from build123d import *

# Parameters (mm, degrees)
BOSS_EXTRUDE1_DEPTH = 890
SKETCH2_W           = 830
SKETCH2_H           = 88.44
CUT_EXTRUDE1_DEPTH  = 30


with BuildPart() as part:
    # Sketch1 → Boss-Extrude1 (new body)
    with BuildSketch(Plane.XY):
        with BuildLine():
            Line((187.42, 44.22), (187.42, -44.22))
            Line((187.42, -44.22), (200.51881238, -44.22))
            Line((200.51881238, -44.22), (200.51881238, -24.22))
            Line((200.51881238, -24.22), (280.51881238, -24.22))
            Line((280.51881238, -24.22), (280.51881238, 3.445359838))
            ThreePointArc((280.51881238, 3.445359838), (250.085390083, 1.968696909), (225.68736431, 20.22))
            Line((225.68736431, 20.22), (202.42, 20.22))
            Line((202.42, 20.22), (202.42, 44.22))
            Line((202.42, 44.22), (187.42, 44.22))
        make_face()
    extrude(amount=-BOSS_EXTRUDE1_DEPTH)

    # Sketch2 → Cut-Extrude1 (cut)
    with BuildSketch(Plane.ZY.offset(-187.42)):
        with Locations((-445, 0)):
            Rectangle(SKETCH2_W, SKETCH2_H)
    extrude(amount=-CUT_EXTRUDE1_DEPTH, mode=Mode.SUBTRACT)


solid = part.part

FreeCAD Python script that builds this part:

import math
import FreeCAD as App
import Part
import Sketcher


def add_polygon(sketch, points):
    """Adds a closed chain of lines whose ends are joined by coincident constraints."""
    first, n = sketch.GeometryCount, len(points)
    for a, b in zip(points, points[1:] + points[:1]):
        sketch.addGeometry(Part.LineSegment(App.Vector(*a, 0), App.Vector(*b, 0)), False)
    for i in range(n):
        sketch.addConstraint(Sketcher.Constraint("Coincident", first + i, 2, first + (i + 1) % n, 1))

doc = App.newDocument("Part")
body = doc.addObject("PartDesign::Body", "Body")

sketch1 = body.newObject("Sketcher::SketchObject", "Sketch")
sketch1.AttachmentSupport = (doc.getObject("XY_Plane"), [""])
sketch1.MapMode = "FlatFace"
sketch1.addGeometry([
    Part.LineSegment(App.Vector(187, 44, 0), App.Vector(187, -44, 0)),
    Part.LineSegment(App.Vector(187, -44, 0), App.Vector(201, -44, 0)),
    Part.LineSegment(App.Vector(201, -44, 0), App.Vector(201, -24, 0)),
    Part.LineSegment(App.Vector(201, -24, 0), App.Vector(281, -24, 0)),
    Part.LineSegment(App.Vector(281, -24, 0), App.Vector(281, 3, 0)),
    Part.ArcOfCircle(Part.Circle(App.Vector(263, 45, 0), App.Vector(0, 0, 1), 45), math.radians(-147), math.radians(-67)),
    Part.LineSegment(App.Vector(226, 20, 0), App.Vector(202, 20, 0)),
    Part.LineSegment(App.Vector(202, 20, 0), App.Vector(202, 44, 0)),
    Part.LineSegment(App.Vector(202, 44, 0), App.Vector(187, 44, 0)),
], False)
sketch1.addConstraint([
    Sketcher.Constraint("Coincident", 0, 2, 1, 1),
    Sketcher.Constraint("Coincident", 1, 2, 2, 1),
    Sketcher.Constraint("Coincident", 2, 2, 3, 1),
    Sketcher.Constraint("Coincident", 3, 2, 4, 1),
    Sketcher.Constraint("Coincident", 4, 2, 5, 2),
    Sketcher.Constraint("Coincident", 5, 1, 6, 1),
    Sketcher.Constraint("Coincident", 6, 2, 7, 1),
    Sketcher.Constraint("Coincident", 7, 2, 8, 1),
    Sketcher.Constraint("Coincident", 8, 2, 0, 1),
    Sketcher.Constraint("Vertical", 0),
    Sketcher.Constraint("Horizontal", 1),
    Sketcher.Constraint("Vertical", 2),
    Sketcher.Constraint("Horizontal", 3),
    Sketcher.Constraint("Vertical", 4),
    Sketcher.Constraint("Horizontal", 6),
    Sketcher.Constraint("Vertical", 7),
    Sketcher.Constraint("Horizontal", 8),
    Sketcher.Constraint("Radius", 5, 45.0),
    Sketcher.Constraint("DistanceX", 3, 1, 3, 2, 80.0),
    Sketcher.Constraint("DistanceX", 8, 2, 8, 1, 15.0),
    Sketcher.Constraint("DistanceY", 2, 1, 2, 2, 20.0),
    Sketcher.Constraint("DistanceY", 7, 1, 7, 2, 24.0),
    Sketcher.Constraint("DistanceY", -1, 1, 5, 3, 45.0),
    Sketcher.Constraint("DistanceY", 0, 2, 0, 1, 88.44),
    Sketcher.Constraint("DistanceX", -1, 1, 5, 3, 263.25),
    Sketcher.Constraint("DistanceX", -1, 1, 0, 2, 187.42),
    Sketcher.Constraint("DistanceY", 0, 2, -1, 1, 44.22),
    Sketcher.Constraint("DistanceY", 4, 1, 4, 2, 27.66536),
])
pad1 = body.newObject("PartDesign::Pad", "Pad")
pad1.Profile = sketch1
pad1.Length = 890
pad1.Reversed = True

sketch2 = body.newObject("Sketcher::SketchObject", "Sketch001")
sketch2.AttachmentSupport = (doc.getObject("YZ_Plane"), [""])
sketch2.MapMode = "FlatFace"
sketch2.AttachmentOffset = App.Placement(App.Vector(0, 0, 187.42), App.Rotation())
add_polygon(sketch2, [(44, -860), (-44, -860), (-44, -30), (44, -30)])
sketch2.addConstraint([
    Sketcher.Constraint("Horizontal", 0),
    Sketcher.Constraint("Vertical", 1),
    Sketcher.Constraint("Horizontal", 2),
    Sketcher.Constraint("Vertical", 3),
    Sketcher.Constraint("DistanceY", 1, 1, 1, 2, 830.0),
    Sketcher.Constraint("DistanceY", 0, 2, -1, 1, 860.0),
    Sketcher.Constraint("DistanceX", 0, 2, 0, 1, 88.44),
    Sketcher.Constraint("DistanceX", 0, 2, -1, 1, 44.22),
])
pocket1 = body.newObject("PartDesign::Pocket", "Pocket")
pocket1.Profile = sketch2
pocket1.Length = 30
pocket1.Reversed = True

doc.recompute()
